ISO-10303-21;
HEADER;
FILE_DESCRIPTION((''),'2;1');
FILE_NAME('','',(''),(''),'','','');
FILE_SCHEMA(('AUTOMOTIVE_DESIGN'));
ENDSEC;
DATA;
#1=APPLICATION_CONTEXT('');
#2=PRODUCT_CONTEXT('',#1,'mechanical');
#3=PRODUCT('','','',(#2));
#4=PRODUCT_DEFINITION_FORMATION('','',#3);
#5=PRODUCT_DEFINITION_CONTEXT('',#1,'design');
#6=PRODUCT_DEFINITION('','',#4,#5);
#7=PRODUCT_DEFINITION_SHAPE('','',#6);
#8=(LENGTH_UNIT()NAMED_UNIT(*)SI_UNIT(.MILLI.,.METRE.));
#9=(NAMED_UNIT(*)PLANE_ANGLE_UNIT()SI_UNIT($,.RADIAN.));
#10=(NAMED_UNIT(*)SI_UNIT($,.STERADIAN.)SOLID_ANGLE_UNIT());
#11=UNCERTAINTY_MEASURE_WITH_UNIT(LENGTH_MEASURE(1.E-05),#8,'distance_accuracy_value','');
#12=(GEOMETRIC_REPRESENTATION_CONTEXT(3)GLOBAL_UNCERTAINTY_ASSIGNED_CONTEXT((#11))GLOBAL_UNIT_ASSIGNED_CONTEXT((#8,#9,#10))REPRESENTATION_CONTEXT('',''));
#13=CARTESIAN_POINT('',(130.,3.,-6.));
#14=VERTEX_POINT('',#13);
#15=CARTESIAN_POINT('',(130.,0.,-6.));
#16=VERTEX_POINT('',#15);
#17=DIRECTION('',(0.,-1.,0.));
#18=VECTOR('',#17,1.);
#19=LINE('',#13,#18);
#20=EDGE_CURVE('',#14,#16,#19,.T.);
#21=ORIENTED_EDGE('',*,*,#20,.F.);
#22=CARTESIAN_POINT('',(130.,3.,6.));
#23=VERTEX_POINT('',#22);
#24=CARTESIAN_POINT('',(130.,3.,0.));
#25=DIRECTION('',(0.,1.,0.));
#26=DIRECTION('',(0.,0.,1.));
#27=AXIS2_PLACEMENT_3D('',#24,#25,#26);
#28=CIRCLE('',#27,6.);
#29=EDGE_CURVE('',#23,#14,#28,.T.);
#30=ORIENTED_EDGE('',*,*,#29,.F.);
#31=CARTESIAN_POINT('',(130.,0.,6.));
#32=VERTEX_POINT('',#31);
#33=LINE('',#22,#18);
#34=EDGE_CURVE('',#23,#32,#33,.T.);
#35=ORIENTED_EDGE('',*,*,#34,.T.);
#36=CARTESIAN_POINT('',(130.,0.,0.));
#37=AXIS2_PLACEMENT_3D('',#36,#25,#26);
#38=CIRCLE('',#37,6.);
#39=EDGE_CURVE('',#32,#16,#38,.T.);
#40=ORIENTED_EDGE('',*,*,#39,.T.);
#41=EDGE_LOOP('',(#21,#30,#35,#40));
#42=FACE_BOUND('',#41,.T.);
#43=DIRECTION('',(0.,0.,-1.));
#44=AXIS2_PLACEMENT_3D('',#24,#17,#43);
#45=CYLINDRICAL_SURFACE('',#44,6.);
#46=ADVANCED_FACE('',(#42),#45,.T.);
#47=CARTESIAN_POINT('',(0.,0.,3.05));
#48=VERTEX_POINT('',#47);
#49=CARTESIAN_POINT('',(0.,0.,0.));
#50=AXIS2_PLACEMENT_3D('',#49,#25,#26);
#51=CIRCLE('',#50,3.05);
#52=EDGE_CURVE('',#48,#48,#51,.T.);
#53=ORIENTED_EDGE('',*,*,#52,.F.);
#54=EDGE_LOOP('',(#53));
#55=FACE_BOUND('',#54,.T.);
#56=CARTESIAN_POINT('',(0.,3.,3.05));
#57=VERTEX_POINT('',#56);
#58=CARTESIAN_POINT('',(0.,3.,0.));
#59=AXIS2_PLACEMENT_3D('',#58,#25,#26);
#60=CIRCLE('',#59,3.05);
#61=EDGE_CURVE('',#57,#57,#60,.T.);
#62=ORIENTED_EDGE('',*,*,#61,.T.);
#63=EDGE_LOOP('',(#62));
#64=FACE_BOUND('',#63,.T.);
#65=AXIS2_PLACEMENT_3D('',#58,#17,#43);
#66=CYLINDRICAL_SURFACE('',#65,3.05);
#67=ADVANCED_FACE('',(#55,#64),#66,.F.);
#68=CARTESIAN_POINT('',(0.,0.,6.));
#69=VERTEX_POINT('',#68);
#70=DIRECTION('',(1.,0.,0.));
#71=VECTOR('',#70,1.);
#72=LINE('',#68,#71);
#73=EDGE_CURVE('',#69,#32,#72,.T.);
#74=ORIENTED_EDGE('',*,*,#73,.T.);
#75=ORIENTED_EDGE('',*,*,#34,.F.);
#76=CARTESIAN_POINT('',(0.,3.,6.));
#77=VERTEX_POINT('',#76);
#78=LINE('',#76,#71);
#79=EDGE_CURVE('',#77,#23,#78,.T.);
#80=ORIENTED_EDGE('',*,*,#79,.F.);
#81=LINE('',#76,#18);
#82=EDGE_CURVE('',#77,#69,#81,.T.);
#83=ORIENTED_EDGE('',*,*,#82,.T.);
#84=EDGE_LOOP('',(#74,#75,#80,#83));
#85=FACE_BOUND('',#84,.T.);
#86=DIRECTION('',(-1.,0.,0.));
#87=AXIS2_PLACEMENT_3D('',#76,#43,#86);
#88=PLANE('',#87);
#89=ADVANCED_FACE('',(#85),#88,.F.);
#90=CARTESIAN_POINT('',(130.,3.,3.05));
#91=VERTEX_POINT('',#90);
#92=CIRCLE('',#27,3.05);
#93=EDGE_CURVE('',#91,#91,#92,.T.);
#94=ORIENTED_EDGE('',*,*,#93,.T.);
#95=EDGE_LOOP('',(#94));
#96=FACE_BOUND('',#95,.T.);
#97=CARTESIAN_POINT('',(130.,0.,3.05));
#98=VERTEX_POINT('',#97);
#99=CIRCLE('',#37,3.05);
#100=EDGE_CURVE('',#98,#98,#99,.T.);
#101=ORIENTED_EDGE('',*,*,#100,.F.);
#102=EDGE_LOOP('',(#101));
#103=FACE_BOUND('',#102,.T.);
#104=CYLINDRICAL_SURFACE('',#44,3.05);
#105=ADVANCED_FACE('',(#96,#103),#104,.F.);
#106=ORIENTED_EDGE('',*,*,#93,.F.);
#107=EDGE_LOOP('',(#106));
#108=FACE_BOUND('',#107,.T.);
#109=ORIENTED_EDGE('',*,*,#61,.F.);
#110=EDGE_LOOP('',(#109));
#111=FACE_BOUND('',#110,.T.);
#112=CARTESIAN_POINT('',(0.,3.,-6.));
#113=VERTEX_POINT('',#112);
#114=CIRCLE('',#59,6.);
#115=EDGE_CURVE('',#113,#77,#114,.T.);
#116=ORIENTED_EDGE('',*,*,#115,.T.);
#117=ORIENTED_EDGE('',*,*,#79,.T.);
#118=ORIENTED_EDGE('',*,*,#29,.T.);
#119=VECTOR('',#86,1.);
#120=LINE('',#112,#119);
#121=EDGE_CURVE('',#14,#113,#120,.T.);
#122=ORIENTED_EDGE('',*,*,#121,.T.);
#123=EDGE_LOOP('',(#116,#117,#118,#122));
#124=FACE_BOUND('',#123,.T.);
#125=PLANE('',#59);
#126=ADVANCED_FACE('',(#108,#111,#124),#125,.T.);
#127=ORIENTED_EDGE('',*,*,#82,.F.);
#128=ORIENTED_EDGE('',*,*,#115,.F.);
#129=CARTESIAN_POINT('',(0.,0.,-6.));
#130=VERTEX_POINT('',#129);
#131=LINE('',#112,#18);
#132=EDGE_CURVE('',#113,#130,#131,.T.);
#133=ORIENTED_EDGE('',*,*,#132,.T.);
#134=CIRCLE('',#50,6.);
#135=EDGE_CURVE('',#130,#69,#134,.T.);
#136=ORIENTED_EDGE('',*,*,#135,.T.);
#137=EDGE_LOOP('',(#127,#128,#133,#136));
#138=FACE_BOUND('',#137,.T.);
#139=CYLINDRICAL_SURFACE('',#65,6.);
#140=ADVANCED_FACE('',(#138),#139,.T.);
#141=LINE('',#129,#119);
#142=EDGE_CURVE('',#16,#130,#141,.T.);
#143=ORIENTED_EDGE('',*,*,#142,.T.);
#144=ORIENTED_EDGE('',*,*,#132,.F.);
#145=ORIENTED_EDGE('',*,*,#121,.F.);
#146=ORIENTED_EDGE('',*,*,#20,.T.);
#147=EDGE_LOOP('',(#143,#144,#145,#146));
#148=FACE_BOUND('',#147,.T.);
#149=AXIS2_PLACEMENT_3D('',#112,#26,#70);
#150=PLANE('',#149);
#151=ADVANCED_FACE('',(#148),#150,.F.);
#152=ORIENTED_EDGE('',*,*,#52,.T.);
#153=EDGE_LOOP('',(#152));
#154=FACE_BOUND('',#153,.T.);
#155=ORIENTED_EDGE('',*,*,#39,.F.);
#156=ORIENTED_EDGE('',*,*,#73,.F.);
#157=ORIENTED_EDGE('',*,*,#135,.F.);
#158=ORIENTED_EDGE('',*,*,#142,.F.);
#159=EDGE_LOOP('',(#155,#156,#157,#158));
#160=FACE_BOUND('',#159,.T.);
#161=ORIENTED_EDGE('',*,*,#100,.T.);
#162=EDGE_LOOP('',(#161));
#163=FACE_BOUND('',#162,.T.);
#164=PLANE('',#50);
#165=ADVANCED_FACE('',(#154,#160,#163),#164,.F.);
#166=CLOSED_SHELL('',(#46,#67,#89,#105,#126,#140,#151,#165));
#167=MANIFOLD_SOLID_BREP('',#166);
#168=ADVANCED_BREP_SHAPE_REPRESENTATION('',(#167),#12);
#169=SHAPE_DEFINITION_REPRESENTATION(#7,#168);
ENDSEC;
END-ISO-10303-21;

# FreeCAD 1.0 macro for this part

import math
import FreeCAD as App
import Part
import Sketcher
from FreeCAD import Vector

doc = App.newDocument("Part")
body = doc.addObject("PartDesign::Body", "Body")

sketch1 = body.newObject("Sketcher::SketchObject", "Sketch")
sketch1.AttachmentSupport = (doc.getObject("XZ_Plane"), [""])
sketch1.MapMode = "FlatFace"
sketch1.addGeometry(Part.LineSegment(Vector(130, -6, 0), Vector(0, -6, 0)), False)
sketch1.addGeometry(Part.ArcOfCircle(Part.Circle(Vector(0, 0, 0), Vector(0, 0, 1), 6), math.radians(90), math.radians(270)), False)
sketch1.addGeometry(Part.LineSegment(Vector(0, 6, 0), Vector(130, 6, 0)), False)
sketch1.addGeometry(Part.ArcOfCircle(Part.Circle(Vector(130, 0, 0), Vector(0, 0, 1), 6), math.radians(-90), math.radians(90)), False)
sketch1.addGeometry(Part.Circle(Vector(130, 0, 0), Vector(0, 0, 1), 3.05), False)
sketch1.addGeometry(Part.Circle(Vector(0, 0, 0), Vector(0, 0, 1), 3.05), False)
sketch1.addConstraint(Sketcher.Constraint("Tangent", 0, 2, 1, 2))
sketch1.addConstraint(Sketcher.Constraint("Tangent", 1, 1, 2, 1))
sketch1.addConstraint(Sketcher.Constraint("Tangent", 2, 2, 3, 2))
sketch1.addConstraint(Sketcher.Constraint("Tangent", 3, 1, 0, 1))
sketch1.addConstraint(Sketcher.Constraint("Horizontal", 0))
sketch1.addConstraint(Sketcher.Constraint("Horizontal", 2))
sketch1.addConstraint(Sketcher.Constraint("Coincident", 1, 3, -1, 1))
sketch1.addConstraint(Sketcher.Constraint("Coincident", 5, 3, -1, 1))
sketch1.addConstraint(Sketcher.Constraint("Coincident", 4, 3, 3, 3))
sketch1.addConstraint(Sketcher.Constraint("Equal", 4, 5))
sketch1.addConstraint(Sketcher.Constraint("Radius", 1, 6.0))
sketch1.addConstraint(Sketcher.Constraint("Diameter", 4, 6.1))
sketch1.addConstraint(Sketcher.Constraint("DistanceX", 0, 2, 0, 1, 130.0))
pad1 = body.newObject("PartDesign::Pad", "Pad")
pad1.Profile = sketch1
pad1.Length = 3
pad1.Reversed = True

doc.recompute()
